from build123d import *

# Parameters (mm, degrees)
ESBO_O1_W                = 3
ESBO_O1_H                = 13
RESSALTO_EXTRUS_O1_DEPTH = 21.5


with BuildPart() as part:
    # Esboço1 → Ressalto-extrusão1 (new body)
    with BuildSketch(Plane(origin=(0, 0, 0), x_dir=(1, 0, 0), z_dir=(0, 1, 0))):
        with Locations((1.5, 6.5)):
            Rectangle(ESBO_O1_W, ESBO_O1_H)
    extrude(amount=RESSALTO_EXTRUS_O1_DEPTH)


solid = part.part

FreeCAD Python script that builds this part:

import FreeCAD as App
import Part
import Sketcher
from FreeCAD import Vector

doc = App.newDocument("Part")
body = doc.addObject("PartDesign::Body", "Body")

sketch1 = body.newObject("Sketcher::SketchObject", "Sketch")
sketch1.AttachmentSupport = (doc.getObject("XZ_Plane"), [""])
sketch1.MapMode = "FlatFace"
sketch1.addGeometry([
    Part.LineSegment(Vector(0, -13, 0), Vector(0, 0, 0)),
    Part.LineSegment(Vector(0, 0, 0), Vector(3, 0, 0)),
    Part.LineSegment(Vector(3, 0, 0), Vector(3, -13, 0)),
    Part.LineSegment(Vector(3, -13, 0), Vector(0, -13, 0)),
], False)
sketch1.addConstraint([
    Sketcher.Constraint("Coincident", 0, 2, 1, 1),
    Sketcher.Constraint("Coincident", 1, 2, 2, 1),
    Sketcher.Constraint("Coincident", 2, 2, 3, 1),
    Sketcher.Constraint("Coincident", 3, 2, 0, 1),
    Sketcher.Constraint("Vertical", 0),
    Sketcher.Constraint("Horizontal", 1),
    Sketcher.Constraint("Vertical", 2),
    Sketcher.Constraint("Horizontal", 3),
    Sketcher.Constraint("Coincident", 0, 2, -1, 1),
    Sketcher.Constraint("DistanceX", 1, 1, 1, 2, 3.0),
    Sketcher.Constraint("DistanceY", 0, 1, 0, 2, 13.0),
])
pad1 = body.newObject("PartDesign::Pad", "Pad")
pad1.Profile = sketch1
pad1.Length = 21.5
pad1.Reversed = True

doc.recompute()
